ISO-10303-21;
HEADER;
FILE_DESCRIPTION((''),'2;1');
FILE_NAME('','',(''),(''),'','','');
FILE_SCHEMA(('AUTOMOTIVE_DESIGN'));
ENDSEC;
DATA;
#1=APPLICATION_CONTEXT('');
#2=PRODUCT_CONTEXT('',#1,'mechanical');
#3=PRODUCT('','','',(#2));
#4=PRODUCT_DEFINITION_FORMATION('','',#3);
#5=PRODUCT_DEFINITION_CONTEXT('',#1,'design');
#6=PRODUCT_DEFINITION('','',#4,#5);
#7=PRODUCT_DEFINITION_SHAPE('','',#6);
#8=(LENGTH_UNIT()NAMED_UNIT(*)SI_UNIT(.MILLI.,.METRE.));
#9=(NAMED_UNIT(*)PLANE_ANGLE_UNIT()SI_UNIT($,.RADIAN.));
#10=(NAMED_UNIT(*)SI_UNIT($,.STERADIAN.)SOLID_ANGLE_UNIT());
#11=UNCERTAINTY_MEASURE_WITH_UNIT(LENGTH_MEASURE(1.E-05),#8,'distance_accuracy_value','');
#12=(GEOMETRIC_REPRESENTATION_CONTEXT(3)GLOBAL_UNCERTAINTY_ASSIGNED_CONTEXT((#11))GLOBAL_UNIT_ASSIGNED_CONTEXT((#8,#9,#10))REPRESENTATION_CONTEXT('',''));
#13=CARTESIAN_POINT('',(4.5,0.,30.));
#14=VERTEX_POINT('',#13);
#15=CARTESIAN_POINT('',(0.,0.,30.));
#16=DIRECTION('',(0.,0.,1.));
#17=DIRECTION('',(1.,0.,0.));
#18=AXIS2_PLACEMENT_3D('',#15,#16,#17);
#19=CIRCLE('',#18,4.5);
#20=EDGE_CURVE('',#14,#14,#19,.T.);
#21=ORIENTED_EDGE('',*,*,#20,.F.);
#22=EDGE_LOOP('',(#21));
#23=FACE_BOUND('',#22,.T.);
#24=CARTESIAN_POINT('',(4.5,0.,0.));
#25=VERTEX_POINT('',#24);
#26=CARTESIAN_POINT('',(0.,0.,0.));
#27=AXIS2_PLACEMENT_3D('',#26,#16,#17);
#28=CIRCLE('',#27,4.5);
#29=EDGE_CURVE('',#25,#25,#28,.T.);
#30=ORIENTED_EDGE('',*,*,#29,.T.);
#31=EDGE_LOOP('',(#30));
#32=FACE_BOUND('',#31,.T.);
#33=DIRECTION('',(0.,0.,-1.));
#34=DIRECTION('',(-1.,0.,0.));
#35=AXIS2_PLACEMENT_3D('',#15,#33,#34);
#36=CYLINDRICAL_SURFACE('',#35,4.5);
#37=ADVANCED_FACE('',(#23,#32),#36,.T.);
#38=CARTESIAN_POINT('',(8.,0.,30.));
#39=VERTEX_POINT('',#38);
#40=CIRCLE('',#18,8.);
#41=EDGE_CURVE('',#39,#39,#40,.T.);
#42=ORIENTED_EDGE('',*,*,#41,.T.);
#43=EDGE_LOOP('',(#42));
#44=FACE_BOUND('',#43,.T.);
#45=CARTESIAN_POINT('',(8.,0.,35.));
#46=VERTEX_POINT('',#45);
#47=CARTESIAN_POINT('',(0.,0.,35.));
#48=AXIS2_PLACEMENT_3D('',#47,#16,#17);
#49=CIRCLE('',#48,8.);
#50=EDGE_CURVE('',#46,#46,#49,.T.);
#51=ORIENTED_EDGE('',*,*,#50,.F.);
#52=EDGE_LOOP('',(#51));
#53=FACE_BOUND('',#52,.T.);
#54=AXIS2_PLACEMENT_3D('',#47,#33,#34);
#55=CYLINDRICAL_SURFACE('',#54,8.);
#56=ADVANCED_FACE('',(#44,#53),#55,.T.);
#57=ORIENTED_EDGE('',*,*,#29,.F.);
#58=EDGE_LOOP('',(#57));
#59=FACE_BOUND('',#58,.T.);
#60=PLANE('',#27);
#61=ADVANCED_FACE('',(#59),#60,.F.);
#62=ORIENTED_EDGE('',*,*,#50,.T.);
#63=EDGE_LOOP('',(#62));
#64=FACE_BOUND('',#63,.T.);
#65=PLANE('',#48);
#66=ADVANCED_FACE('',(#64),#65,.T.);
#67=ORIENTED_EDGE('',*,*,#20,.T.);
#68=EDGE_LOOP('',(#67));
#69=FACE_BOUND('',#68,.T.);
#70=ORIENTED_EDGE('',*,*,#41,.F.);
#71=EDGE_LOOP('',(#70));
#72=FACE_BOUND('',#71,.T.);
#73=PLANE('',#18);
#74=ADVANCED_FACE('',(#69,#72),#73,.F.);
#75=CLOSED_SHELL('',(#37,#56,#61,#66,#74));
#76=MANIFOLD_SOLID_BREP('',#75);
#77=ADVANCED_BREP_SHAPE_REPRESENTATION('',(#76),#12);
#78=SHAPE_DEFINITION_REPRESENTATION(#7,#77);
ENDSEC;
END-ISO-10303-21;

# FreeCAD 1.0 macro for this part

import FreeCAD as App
import Part
import Sketcher
Q = App.Units.Quantity

doc = App.newDocument("Part")
body = doc.addObject("PartDesign::Body", "Body")

# Sketch on XY plane
sketch1 = body.newObject("Sketcher::SketchObject", "Sketch")
sketch1.AttachmentSupport = (doc.getObject("XY_Plane"), [""])
sketch1.MapMode = "FlatFace"
sketch1.addGeometry(Part.Circle(App.Vector(0, 0, 0), App.Vector(0, 0, 1), 4.5), False)
sketch1.addConstraint(Sketcher.Constraint("Coincident", 0, 3, -1, 1))
sketch1.addConstraint(Sketcher.Constraint("Diameter", 0, Q("9 mm")))
pad1 = body.newObject("PartDesign::Pad", "Pad")
pad1.Profile = sketch1
pad1.Length = 30

# Sketch on XY plane
sketch2 = body.newObject("Sketcher::SketchObject", "Sketch001")
sketch2.AttachmentSupport = (doc.getObject("XY_Plane"), [""])
sketch2.MapMode = "FlatFace"
sketch2.AttachmentOffset = App.Placement(App.Vector(0, 0, 30), App.Rotation())
sketch2.addGeometry(Part.Circle(App.Vector(0, 0, 0), App.Vector(0, 0, 1), 8), False)
sketch2.addConstraint(Sketcher.Constraint("Coincident", 0, 3, -1, 1))
sketch2.addConstraint(Sketcher.Constraint("Diameter", 0, Q("16 mm")))
pad2 = body.newObject("PartDesign::Pad", "Pad001")
pad2.Profile = sketch2
pad2.Length = 5

doc.recompute()
